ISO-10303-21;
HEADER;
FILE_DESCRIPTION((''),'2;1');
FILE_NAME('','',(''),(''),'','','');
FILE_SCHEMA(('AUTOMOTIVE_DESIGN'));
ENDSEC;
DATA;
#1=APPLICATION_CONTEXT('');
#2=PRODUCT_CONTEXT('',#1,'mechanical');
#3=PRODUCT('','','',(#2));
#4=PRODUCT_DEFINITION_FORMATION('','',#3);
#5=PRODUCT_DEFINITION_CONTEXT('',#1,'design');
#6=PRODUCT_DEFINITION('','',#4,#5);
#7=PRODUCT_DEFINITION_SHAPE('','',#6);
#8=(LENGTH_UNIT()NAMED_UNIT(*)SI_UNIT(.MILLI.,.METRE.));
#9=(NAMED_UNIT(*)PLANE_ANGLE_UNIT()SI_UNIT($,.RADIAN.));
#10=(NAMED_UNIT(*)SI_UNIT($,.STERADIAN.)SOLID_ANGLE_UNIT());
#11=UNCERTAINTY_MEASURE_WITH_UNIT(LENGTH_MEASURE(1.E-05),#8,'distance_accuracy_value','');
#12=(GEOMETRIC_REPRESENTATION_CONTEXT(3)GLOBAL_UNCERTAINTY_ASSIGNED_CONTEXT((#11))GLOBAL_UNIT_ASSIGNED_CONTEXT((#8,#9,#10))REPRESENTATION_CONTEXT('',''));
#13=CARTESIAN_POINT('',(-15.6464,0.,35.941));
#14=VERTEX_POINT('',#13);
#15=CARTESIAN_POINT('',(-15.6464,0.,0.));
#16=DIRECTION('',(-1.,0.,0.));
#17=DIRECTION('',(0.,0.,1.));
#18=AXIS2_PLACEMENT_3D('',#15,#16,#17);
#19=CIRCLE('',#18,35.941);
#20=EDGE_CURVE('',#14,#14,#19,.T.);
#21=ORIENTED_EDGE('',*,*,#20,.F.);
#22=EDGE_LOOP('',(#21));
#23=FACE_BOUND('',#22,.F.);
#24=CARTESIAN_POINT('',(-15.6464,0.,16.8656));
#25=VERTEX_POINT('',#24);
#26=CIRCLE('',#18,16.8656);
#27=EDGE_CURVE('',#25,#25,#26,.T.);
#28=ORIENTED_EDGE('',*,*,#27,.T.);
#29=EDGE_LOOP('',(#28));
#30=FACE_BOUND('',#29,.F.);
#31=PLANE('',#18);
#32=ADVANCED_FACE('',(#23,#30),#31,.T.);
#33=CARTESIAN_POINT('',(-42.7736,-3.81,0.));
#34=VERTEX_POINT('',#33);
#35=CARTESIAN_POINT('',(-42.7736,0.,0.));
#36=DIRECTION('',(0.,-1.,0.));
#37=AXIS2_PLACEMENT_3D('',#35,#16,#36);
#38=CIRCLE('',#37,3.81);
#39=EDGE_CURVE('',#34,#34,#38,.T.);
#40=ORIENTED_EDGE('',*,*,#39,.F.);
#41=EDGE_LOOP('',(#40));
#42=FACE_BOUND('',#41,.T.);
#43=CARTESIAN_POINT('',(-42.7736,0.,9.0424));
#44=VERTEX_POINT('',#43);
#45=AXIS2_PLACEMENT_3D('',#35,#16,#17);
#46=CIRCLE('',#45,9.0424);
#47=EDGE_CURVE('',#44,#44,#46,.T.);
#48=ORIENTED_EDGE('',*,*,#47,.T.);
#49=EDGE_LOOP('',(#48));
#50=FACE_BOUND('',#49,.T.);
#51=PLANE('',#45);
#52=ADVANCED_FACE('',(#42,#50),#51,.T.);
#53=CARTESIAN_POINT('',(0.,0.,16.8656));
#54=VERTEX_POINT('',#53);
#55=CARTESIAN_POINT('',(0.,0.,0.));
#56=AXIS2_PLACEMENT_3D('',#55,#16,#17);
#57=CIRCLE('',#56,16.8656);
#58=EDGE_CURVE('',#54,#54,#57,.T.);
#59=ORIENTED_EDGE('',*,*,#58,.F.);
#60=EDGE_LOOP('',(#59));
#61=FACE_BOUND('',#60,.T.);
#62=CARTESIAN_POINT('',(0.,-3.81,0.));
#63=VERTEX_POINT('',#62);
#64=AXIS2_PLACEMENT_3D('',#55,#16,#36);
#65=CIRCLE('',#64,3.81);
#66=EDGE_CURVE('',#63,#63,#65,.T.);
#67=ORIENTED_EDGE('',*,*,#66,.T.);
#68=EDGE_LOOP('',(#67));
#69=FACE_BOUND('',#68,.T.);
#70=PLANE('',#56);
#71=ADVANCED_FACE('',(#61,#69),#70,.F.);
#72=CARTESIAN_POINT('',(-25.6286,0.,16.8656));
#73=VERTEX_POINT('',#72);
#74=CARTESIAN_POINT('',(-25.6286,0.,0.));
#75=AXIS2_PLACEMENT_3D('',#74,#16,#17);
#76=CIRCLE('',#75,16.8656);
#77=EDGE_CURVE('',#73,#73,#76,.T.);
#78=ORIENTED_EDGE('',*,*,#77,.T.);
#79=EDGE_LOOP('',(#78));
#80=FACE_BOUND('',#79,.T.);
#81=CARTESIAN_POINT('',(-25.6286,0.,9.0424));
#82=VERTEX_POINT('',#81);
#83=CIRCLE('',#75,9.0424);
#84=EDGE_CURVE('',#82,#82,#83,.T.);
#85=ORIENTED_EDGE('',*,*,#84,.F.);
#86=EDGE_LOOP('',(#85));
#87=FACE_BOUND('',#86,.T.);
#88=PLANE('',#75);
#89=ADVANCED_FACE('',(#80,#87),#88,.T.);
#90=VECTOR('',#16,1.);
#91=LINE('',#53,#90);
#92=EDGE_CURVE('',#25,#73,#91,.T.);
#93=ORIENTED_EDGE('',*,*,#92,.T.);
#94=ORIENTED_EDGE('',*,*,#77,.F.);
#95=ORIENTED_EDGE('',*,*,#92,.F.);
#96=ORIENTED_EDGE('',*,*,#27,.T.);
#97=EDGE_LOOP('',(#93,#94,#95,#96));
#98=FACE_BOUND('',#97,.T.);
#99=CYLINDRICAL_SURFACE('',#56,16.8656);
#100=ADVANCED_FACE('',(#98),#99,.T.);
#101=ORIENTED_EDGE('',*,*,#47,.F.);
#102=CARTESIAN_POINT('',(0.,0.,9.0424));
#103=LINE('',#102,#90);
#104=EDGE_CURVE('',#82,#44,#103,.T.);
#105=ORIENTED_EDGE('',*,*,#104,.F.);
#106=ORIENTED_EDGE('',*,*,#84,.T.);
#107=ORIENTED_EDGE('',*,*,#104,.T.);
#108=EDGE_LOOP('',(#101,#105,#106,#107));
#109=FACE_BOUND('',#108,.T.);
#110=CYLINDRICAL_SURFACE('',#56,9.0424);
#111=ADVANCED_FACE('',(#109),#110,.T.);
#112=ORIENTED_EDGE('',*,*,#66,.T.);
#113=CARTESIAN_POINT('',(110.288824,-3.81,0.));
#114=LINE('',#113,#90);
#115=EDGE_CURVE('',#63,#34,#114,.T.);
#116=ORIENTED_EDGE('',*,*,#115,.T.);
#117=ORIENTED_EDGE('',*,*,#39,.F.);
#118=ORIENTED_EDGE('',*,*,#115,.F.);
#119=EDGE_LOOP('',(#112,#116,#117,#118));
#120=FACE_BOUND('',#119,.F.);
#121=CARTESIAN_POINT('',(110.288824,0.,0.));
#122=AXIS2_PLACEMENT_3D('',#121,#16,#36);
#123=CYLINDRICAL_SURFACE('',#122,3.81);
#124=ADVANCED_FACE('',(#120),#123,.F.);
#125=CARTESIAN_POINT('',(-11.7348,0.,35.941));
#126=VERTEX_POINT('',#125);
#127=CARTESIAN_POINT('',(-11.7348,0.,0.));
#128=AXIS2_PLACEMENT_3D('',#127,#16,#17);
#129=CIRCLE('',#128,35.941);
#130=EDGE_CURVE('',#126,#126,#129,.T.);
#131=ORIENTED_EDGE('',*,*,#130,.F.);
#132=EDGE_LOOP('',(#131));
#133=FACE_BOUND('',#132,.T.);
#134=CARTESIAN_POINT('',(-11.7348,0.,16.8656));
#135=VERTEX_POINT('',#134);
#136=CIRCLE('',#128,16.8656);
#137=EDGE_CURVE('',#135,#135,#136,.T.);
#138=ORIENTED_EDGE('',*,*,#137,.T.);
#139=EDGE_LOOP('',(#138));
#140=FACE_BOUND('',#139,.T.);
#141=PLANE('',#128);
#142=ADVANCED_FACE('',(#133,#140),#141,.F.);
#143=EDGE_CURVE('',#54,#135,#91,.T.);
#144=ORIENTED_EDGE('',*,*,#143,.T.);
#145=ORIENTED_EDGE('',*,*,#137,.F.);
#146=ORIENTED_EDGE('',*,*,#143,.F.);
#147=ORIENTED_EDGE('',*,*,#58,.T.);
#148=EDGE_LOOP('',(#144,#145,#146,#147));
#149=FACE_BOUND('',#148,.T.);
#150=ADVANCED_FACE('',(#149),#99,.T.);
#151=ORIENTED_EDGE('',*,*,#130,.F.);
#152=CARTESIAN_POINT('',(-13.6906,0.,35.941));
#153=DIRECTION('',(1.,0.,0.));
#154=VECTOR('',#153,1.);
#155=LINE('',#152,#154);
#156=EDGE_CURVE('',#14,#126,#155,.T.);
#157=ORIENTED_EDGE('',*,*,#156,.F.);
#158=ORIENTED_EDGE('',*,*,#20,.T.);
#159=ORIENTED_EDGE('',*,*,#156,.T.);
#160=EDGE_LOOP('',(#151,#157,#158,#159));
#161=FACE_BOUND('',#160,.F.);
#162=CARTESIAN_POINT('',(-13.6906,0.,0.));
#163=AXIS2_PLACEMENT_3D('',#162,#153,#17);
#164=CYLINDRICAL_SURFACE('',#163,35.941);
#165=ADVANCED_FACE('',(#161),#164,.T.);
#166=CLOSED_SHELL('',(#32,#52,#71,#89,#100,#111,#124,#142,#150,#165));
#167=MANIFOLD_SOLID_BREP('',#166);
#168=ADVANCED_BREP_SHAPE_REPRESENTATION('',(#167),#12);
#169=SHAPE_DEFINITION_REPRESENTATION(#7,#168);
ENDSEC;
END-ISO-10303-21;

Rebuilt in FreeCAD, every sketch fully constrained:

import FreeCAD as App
import Part
import Sketcher
Q = App.Units.Quantity

doc = App.newDocument("Part")
body = doc.addObject("PartDesign::Body", "Body")

# Sketch on XZ plane
sketch1 = body.newObject("Sketcher::SketchObject", "Sketch")
sketch1.AttachmentSupport = (doc.getObject("XZ_Plane"), [""])
sketch1.MapMode = "FlatFace"
sketch1.addGeometry(Part.LineSegment(App.Vector(-42.7736, 0, 0), App.Vector(0, 0, 0)), False)
sketch1.addGeometry(Part.LineSegment(App.Vector(0, 0, 0), App.Vector(0, 16.8656, 0)), False)
sketch1.addGeometry(Part.LineSegment(App.Vector(0, 16.8656, 0), App.Vector(-11.7348, 16.8656, 0)), False)
sketch1.addGeometry(Part.LineSegment(App.Vector(-11.7348, 16.8656, 0), App.Vector(-11.7348, 35.941, 0)), False)
sketch1.addGeometry(Part.LineSegment(App.Vector(-11.7348, 35.941, 0), App.Vector(-15.6464, 35.941, 0)), False)
sketch1.addGeometry(Part.LineSegment(App.Vector(-15.6464, 35.941, 0), App.Vector(-15.6464, 16.8656, 0)), False)
sketch1.addGeometry(Part.LineSegment(App.Vector(-15.6464, 16.8656, 0), App.Vector(-25.6286, 16.8656, 0)), False)
sketch1.addGeometry(Part.LineSegment(App.Vector(-25.6286, 16.8656, 0), App.Vector(-25.6286, 9.0424, 0)), False)
sketch1.addGeometry(Part.LineSegment(App.Vector(-25.6286, 9.0424, 0), App.Vector(-42.7736, 9.0424, 0)), False)
sketch1.addGeometry(Part.LineSegment(App.Vector(-42.7736, 9.0424, 0), App.Vector(-42.7736, 0, 0)), False)
sketch1.addConstraint(Sketcher.Constraint("Coincident", 0, 2, 1, 1))
sketch1.addConstraint(Sketcher.Constraint("Coincident", 1, 2, 2, 1))
sketch1.addConstraint(Sketcher.Constraint("Coincident", 2, 2, 3, 1))
sketch1.addConstraint(Sketcher.Constraint("Coincident", 3, 2, 4, 1))
sketch1.addConstraint(Sketcher.Constraint("Coincident", 4, 2, 5, 1))
sketch1.addConstraint(Sketcher.Constraint("Coincident", 5, 2, 6, 1))
sketch1.addConstraint(Sketcher.Constraint("Coincident", 6, 2, 7, 1))
sketch1.addConstraint(Sketcher.Constraint("Coincident", 7, 2, 8, 1))
sketch1.addConstraint(Sketcher.Constraint("Coincident", 8, 2, 9, 1))
sketch1.addConstraint(Sketcher.Constraint("Coincident", 9, 2, 0, 1))
sketch1.addConstraint(Sketcher.Constraint("Horizontal", 0))
sketch1.addConstraint(Sketcher.Constraint("Vertical", 1))
sketch1.addConstraint(Sketcher.Constraint("Horizontal", 2))
sketch1.addConstraint(Sketcher.Constraint("Vertical", 3))
sketch1.addConstraint(Sketcher.Constraint("Horizontal", 4))
sketch1.addConstraint(Sketcher.Constraint("Vertical", 5))
sketch1.addConstraint(Sketcher.Constraint("Horizontal", 6))
sketch1.addConstraint(Sketcher.Constraint("Vertical", 7))
sketch1.addConstraint(Sketcher.Constraint("Horizontal", 8))
sketch1.addConstraint(Sketcher.Constraint("Vertical", 9))
sketch1.addConstraint(Sketcher.Constraint("Coincident", 0, 2, -1, 1))
sketch1.addConstraint(Sketcher.Constraint("Horizontal", 2, 2, 5, 2))
sketch1.addConstraint(Sketcher.Constraint("DistanceX", 0, 1, 0, 2, Q("1.684 in")))
sketch1.addConstraint(Sketcher.Constraint("DistanceX", 2, 2, 2, 1, Q("0.462 in")))
sketch1.addConstraint(Sketcher.Constraint("DistanceX", 4, 2, 4, 1, Q("0.154 in")))
sketch1.addConstraint(Sketcher.Constraint("DistanceX", 6, 2, 6, 1, Q("0.393 in")))
sketch1.addConstraint(Sketcher.Constraint("DistanceY", 1, 1, 1, 2, Q("0.664 in")))
sketch1.addConstraint(Sketcher.Constraint("DistanceY", 3, 1, 3, 2, Q("0.751 in")))
sketch1.addConstraint(Sketcher.Constraint("DistanceY", 7, 2, 7, 1, Q("0.308 in")))
revolution = body.newObject("PartDesign::Revolution", "Revolution")
revolution.Profile = sketch1
revolution.ReferenceAxis = (sketch1, ["H_Axis"])
revolution.Angle = 360

# Sketch on YZ plane
sketch2 = body.newObject("Sketcher::SketchObject", "Sketch001")
sketch2.AttachmentSupport = (doc.getObject("YZ_Plane"), [""])
sketch2.MapMode = "FlatFace"
sketch2.addGeometry(Part.Circle(App.Vector(0, 0, 0), App.Vector(0, 0, 1), 3.81), False)
sketch2.addConstraint(Sketcher.Constraint("Coincident", 0, 3, -1, 1))
sketch2.addConstraint(Sketcher.Constraint("Diameter", 0, Q("0.3 in")))
doc.recompute()
hole = body.newObject("PartDesign::Hole", "Hole")
hole.Profile = sketch2
hole.ThreadType = "None"
hole.Diameter = Q("0.3 in")
hole.DepthType = "ThroughAll"

doc.recompute()
